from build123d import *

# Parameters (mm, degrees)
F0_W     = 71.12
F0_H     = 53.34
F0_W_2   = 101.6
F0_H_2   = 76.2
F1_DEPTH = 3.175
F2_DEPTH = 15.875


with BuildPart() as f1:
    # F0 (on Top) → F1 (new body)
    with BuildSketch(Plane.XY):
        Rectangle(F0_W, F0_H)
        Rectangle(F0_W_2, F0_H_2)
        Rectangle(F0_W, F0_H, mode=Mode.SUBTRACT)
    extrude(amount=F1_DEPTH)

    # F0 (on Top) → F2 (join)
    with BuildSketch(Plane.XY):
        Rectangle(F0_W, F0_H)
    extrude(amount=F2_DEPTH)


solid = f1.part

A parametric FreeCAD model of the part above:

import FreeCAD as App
import Part
import Sketcher
from FreeCAD import Vector
Q = App.Units.Quantity


def add_polygon(sketch, points):
    """Adds a closed chain of lines whose ends are joined by coincident constraints."""
    first, n = sketch.GeometryCount, len(points)
    for a, b in zip(points, points[1:] + points[:1]):
        sketch.addGeometry(Part.LineSegment(App.Vector(*a, 0), App.Vector(*b, 0)), False)
    for i in range(n):
        sketch.addConstraint(Sketcher.Constraint("Coincident", first + i, 2, first + (i + 1) % n, 1))

doc = App.newDocument("Part")
params = doc.addObject("Spreadsheet::Sheet", "Params")
for row, (alias, value) in enumerate([
    ("sketch1_width", "4 in"),
    ("sketch1_height", "3 in"),
    ("sketch1_width2", "2.8 in"),
    ("sketch1_height2", "2.1 in"),
    ("pad1_length", "0.125 in"),
    ("sketch2_width", "2.8 in"),
    ("sketch2_height", "2.1 in"),
    ("pad2_length", "0.625 in"),
], start=1):
    params.set(f"A{row}", alias)
    params.set(f"B{row}", "=" + value)
    params.setAlias(f"B{row}", alias)

body = doc.addObject("PartDesign::Body", "Body")

# Sketch on XY plane
sketch1 = body.newObject("Sketcher::SketchObject", "Sketch")
sketch1.AttachmentSupport = (doc.getObject("XY_Plane"), [""])
sketch1.MapMode = "FlatFace"
add_polygon(sketch1, [(-51, 38), (-51, -38), (51, -38), (51, 38)])  # lines 0-3
add_polygon(sketch1, [(36, -27), (-36, -27), (-36, 27), (36, 27)])  # lines 4-7
sketch1.addConstraint([
    Sketcher.Constraint("Vertical", 0),
    Sketcher.Constraint("Horizontal", 1),
    Sketcher.Constraint("Vertical", 2),
    Sketcher.Constraint("Horizontal", 3),
    Sketcher.Constraint("Horizontal", 4),
    Sketcher.Constraint("Vertical", 5),
    Sketcher.Constraint("Horizontal", 6),
    Sketcher.Constraint("Vertical", 7),
    Sketcher.Constraint("Symmetric", 0, 2, 2, 2, -1, 1),
    Sketcher.Constraint("Symmetric", 4, 2, 6, 2, -1, 1),
    Sketcher.Constraint("DistanceX", 1, 1, 1, 2, Q("4 in")),
    Sketcher.Constraint("DistanceY", 0, 2, 0, 1, Q("3 in")),
    Sketcher.Constraint("DistanceX", 4, 2, 4, 1, Q("2.8 in")),
    Sketcher.Constraint("DistanceY", 5, 1, 5, 2, Q("2.1 in")),
])
sketch1.setExpression("Constraints[18]", "Params.sketch1_width")
sketch1.setExpression("Constraints[19]", "Params.sketch1_height")
sketch1.setExpression("Constraints[20]", "Params.sketch1_width2")
sketch1.setExpression("Constraints[21]", "Params.sketch1_height2")
pad1 = body.newObject("PartDesign::Pad", "Pad")
pad1.Profile = sketch1
pad1.setExpression("Length", "Params.pad1_length")

# Sketch on XY plane
sketch2 = body.newObject("Sketcher::SketchObject", "Sketch001")
sketch2.AttachmentSupport = (doc.getObject("XY_Plane"), [""])
sketch2.MapMode = "FlatFace"
add_polygon(sketch2, [(-36, 27), (-36, -27), (36, -27), (36, 27)])  # lines 0-3
sketch2.addConstraint([
    Sketcher.Constraint("Vertical", 0),
    Sketcher.Constraint("Horizontal", 1),
    Sketcher.Constraint("Vertical", 2),
    Sketcher.Constraint("Horizontal", 3),
    Sketcher.Constraint("Symmetric", 0, 2, 2, 2, -1, 1),
    Sketcher.Constraint("DistanceX", 1, 1, 1, 2, Q("2.8 in")),
    Sketcher.Constraint("DistanceY", 0, 2, 0, 1, Q("2.1 in")),
])
sketch2.setExpression("Constraints[9]", "Params.sketch2_width")
sketch2.setExpression("Constraints[10]", "Params.sketch2_height")
pad2 = body.newObject("PartDesign::Pad", "Pad001")
pad2.Profile = sketch2
pad2.setExpression("Length", "Params.pad2_length")

doc.recompute()
